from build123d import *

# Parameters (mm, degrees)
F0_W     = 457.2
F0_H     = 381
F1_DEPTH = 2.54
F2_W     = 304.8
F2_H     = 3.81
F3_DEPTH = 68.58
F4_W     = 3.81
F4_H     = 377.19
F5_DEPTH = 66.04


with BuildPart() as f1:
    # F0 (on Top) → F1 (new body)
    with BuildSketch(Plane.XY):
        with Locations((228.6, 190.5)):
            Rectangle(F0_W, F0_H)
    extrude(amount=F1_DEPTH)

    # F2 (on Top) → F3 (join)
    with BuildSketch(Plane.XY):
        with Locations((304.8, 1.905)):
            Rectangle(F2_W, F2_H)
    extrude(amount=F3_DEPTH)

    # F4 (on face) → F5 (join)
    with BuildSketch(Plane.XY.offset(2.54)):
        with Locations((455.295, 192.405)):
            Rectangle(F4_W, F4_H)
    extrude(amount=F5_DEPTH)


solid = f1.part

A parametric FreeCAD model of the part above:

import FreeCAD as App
import Part
import Sketcher

V = App.Vector
Q = App.Units.Quantity


def add_polygon(sketch, points):
    """Adds a closed chain of lines whose ends are joined by coincident constraints."""
    first, n = sketch.GeometryCount, len(points)
    for a, b in zip(points, points[1:] + points[:1]):
        sketch.addGeometry(Part.LineSegment(App.Vector(*a, 0), App.Vector(*b, 0)), False)
    for i in range(n):
        sketch.addConstraint(Sketcher.Constraint("Coincident", first + i, 2, first + (i + 1) % n, 1))

doc = App.newDocument("Part")
body = doc.addObject("PartDesign::Body", "Body")

sketch1 = body.newObject("Sketcher::SketchObject", "Sketch")
sketch1.AttachmentSupport = (doc.getObject("XY_Plane"), [""])
sketch1.MapMode = "FlatFace"
add_polygon(sketch1, [(0, 381), (0, 0), (457, 0), (457, 381)])
sketch1.addConstraint([
    Sketcher.Constraint("Vertical", 0),
    Sketcher.Constraint("Horizontal", 1),
    Sketcher.Constraint("Vertical", 2),
    Sketcher.Constraint("Horizontal", 3),
    Sketcher.Constraint("Coincident", 0, 2, -1, 1),
    Sketcher.Constraint("DistanceX", 1, 1, 1, 2, Q("18 in")),
    Sketcher.Constraint("DistanceY", 0, 2, 0, 1, Q("15 in")),
])
pad1 = body.newObject("PartDesign::Pad", "Pad")
pad1.Profile = sketch1
pad1.Length = Q("0.1 in")

sketch2 = body.newObject("Sketcher::SketchObject", "Sketch001")
sketch2.AttachmentSupport = (doc.getObject("XY_Plane"), [""])
sketch2.MapMode = "FlatFace"
add_polygon(sketch2, [(152.4, 3.8), (152.4, 0), (457.2, 0), (457.2, 3.8)])
sketch2.addConstraint([
    Sketcher.Constraint("Vertical", 0),
    Sketcher.Constraint("Horizontal", 1),
    Sketcher.Constraint("Vertical", 2),
    Sketcher.Constraint("Horizontal", 3),
    Sketcher.Constraint("PointOnObject", 0, 2, -1),
    Sketcher.Constraint("DistanceX", 1, 1, 1, 2, Q("12 in")),
    Sketcher.Constraint("DistanceX", -1, 1, 0, 2, Q("6 in")),
    Sketcher.Constraint("DistanceY", 0, 2, 0, 1, Q("0.15 in")),
])
pad2 = body.newObject("PartDesign::Pad", "Pad001")
pad2.Profile = sketch2
pad2.Length = Q("2.7 in")

sketch3 = body.newObject("Sketcher::SketchObject", "Sketch002")
sketch3.AttachmentSupport = (doc.getObject("XY_Plane"), [""])
sketch3.MapMode = "FlatFace"
sketch3.AttachmentOffset = App.Placement(V(0, 0, 0.1 * 25.4), App.Rotation())
add_polygon(sketch3, [(453.4, 381), (453.4, 3.8), (457.2, 3.8), (457.2, 381)])
sketch3.addConstraint([
    Sketcher.Constraint("Vertical", 0),
    Sketcher.Constraint("Horizontal", 1),
    Sketcher.Constraint("Vertical", 2),
    Sketcher.Constraint("Horizontal", 3),
    Sketcher.Constraint("DistanceX", -1, 1, 1, 2, Q("18 in")),
    Sketcher.Constraint("DistanceY", -1, 1, 2, 2, Q("15 in")),
    Sketcher.Constraint("DistanceX", 1, 1, 1, 2, Q("0.15 in")),
    Sketcher.Constraint("DistanceY", 0, 2, 0, 1, Q("14.85 in")),
])
pad3 = body.newObject("PartDesign::Pad", "Pad002")
pad3.Profile = sketch3
pad3.Length = Q("2.6 in")

doc.recompute()
